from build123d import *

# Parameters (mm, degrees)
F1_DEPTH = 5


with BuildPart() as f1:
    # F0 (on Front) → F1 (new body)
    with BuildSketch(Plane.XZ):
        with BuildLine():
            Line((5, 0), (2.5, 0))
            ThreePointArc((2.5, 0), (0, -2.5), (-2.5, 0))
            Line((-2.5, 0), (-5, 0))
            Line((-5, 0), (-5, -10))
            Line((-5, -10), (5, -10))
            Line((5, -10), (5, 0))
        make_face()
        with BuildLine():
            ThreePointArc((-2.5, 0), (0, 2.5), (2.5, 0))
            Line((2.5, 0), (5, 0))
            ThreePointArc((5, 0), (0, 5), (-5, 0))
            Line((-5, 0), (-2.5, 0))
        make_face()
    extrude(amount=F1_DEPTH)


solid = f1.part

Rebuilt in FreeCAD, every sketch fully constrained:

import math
import FreeCAD as App
import Part
import Sketcher

doc = App.newDocument("Part")
params = doc.addObject("Spreadsheet::Sheet", "Params")
for row, (alias, value) in enumerate([
    ("sketch1_diameter", "5 mm"),
    ("sketch1_radius", "5 mm"),
    ("pad1_length", "5 mm"),
], start=1):
    params.set(f"A{row}", alias)
    params.set(f"B{row}", "=" + value)
    params.setAlias(f"B{row}", alias)

body = doc.addObject("PartDesign::Body", "Body")

sketch1 = body.newObject("Sketcher::SketchObject", "Sketch")
sketch1.AttachmentSupport = (doc.getObject("XZ_Plane"), [""])
sketch1.MapMode = "FlatFace"
sketch1.addGeometry([
    Part.LineSegment(App.Vector(-5, 0, 0), App.Vector(-5, -10, 0)),
    Part.LineSegment(App.Vector(-5, -10, 0), App.Vector(5, -10, 0)),
    Part.LineSegment(App.Vector(5, -10, 0), App.Vector(5, 0, 0)),
    Part.ArcOfCircle(Part.Circle(App.Vector(0, 0, 0), App.Vector(0, 0, 1), 5), math.radians(0), math.radians(180)),
    Part.Circle(App.Vector(0, 0, 0), App.Vector(0, 0, 1), 2.5),
], False)
sketch1.addConstraint([
    Sketcher.Constraint("Coincident", 0, 2, 1, 1),
    Sketcher.Constraint("Coincident", 1, 2, 2, 1),
    Sketcher.Constraint("Tangent", 2, 2, 3, 1),
    Sketcher.Constraint("Tangent", 3, 2, 0, 1),
    Sketcher.Constraint("Vertical", 0),
    Sketcher.Constraint("Horizontal", 1),
    Sketcher.Constraint("Vertical", 2),
    Sketcher.Constraint("Coincident", 3, 3, -1, 1),
    Sketcher.Constraint("Coincident", 4, 3, -1, 1),
    Sketcher.Constraint("Equal", 1, 0),
    Sketcher.Constraint("Diameter", 4, 5.0),
    Sketcher.Constraint("Radius", 3, 5.0),
])
sketch1.setExpression("Constraints[10]", "Params.sketch1_diameter")
sketch1.setExpression("Constraints[11]", "Params.sketch1_radius")
pad1 = body.newObject("PartDesign::Pad", "Pad")
pad1.Profile = sketch1
pad1.setExpression("Length", "Params.pad1_length")

doc.recompute()
